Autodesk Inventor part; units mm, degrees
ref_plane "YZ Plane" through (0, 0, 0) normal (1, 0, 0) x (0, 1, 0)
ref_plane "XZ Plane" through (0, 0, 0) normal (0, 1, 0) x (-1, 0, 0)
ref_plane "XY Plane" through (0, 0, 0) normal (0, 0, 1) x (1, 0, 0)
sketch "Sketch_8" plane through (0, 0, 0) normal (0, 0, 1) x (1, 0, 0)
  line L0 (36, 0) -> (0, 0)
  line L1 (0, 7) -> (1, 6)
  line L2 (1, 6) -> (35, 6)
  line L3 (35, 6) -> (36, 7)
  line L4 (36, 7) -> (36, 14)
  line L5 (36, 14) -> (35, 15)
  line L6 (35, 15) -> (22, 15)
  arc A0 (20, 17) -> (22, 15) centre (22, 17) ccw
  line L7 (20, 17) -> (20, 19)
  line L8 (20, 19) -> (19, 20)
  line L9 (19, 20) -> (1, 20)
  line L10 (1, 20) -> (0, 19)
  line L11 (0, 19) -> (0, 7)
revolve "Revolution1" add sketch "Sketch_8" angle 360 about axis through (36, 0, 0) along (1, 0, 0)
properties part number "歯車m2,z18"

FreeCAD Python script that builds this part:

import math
import FreeCAD as App
import Part
import Sketcher
from FreeCAD import Vector

doc = App.newDocument("Part")
params = doc.addObject("Spreadsheet::Sheet", "Params")
for row, (alias, value) in enumerate([
    ("sketch1_radius", "2 mm"),
    ("sketch1_width", "34 mm"),
    ("sketch1_width2", "13 mm"),
    ("sketch1_width3", "18 mm"),
    ("sketch1_height", "12 mm"),
    ("revolution_angle", "360 deg"),
], start=1):
    params.set(f"A{row}", alias)
    params.set(f"B{row}", "=" + value)
    params.setAlias(f"B{row}", alias)

body = doc.addObject("PartDesign::Body", "Body")

sketch1 = doc.addObject("Sketcher::SketchObject", "Sketch")
body.addObject(sketch1)
sketch1.AttachmentSupport = (doc.XY_Plane, [""])
sketch1.MapMode = "FlatFace"
sketch1.addGeometry([
    Part.LineSegment(Vector(0, 19, 0), Vector(0, 7, 0)),
    Part.LineSegment(Vector(0, 7, 0), Vector(1, 6, 0)),
    Part.LineSegment(Vector(1, 6, 0), Vector(35, 6, 0)),
    Part.LineSegment(Vector(35, 6, 0), Vector(36, 7, 0)),
    Part.LineSegment(Vector(36, 7, 0), Vector(36, 14, 0)),
    Part.LineSegment(Vector(36, 14, 0), Vector(35, 15, 0)),
    Part.LineSegment(Vector(35, 15, 0), Vector(22, 15, 0)),
    Part.ArcOfCircle(Part.Circle(Vector(22, 17, 0), Vector(0, 0, 1), 2), math.radians(180), math.radians(270)),
    Part.LineSegment(Vector(20, 17, 0), Vector(20, 19, 0)),
    Part.LineSegment(Vector(20, 19, 0), Vector(19, 20, 0)),
    Part.LineSegment(Vector(19, 20, 0), Vector(1, 20, 0)),
    Part.LineSegment(Vector(1, 20, 0), Vector(0, 19, 0)),
], False)
sketch1.addConstraint([
    Sketcher.Constraint("Coincident", 0, 2, 1, 1),
    Sketcher.Constraint("Coincident", 1, 2, 2, 1),
    Sketcher.Constraint("Coincident", 2, 2, 3, 1),
    Sketcher.Constraint("Coincident", 3, 2, 4, 1),
    Sketcher.Constraint("Coincident", 4, 2, 5, 1),
    Sketcher.Constraint("Coincident", 5, 2, 6, 1),
    Sketcher.Constraint("Tangent", 6, 2, 7, 2),
    Sketcher.Constraint("Tangent", 7, 1, 8, 1),
    Sketcher.Constraint("Coincident", 8, 2, 9, 1),
    Sketcher.Constraint("Coincident", 9, 2, 10, 1),
    Sketcher.Constraint("Coincident", 10, 2, 11, 1),
    Sketcher.Constraint("Coincident", 11, 2, 0, 1),
    Sketcher.Constraint("Vertical", 0),
    Sketcher.Constraint("Horizontal", 2),
    Sketcher.Constraint("Vertical", 4),
    Sketcher.Constraint("Horizontal", 6),
    Sketcher.Constraint("Vertical", 8),
    Sketcher.Constraint("Horizontal", 10),
    Sketcher.Constraint("PointOnObject", 0, 2, -2),
    Sketcher.Constraint("Perpendicular", 1, 3),
    Sketcher.Constraint("Perpendicular", 3, 5),
    Sketcher.Constraint("Parallel", 5, 9),
    Sketcher.Constraint("Perpendicular", 9, 11),
    Sketcher.Constraint("Horizontal", 0, 2, 3, 2),
    Sketcher.Constraint("Horizontal", 8, 2, 11, 2),
    Sketcher.Constraint("Vertical", 2, 2, 5, 2),
    Sketcher.Constraint("Vertical", 1, 2, 10, 2),
    Sketcher.Constraint("Equal", 1, 3),
    Sketcher.Constraint("Radius", 7, 2.0),
    Sketcher.Constraint("DistanceX", 2, 1, 2, 2, 34.0),
    Sketcher.Constraint("DistanceX", 6, 2, 6, 1, 13.0),
    Sketcher.Constraint("DistanceX", 10, 2, 10, 1, 18.0),
    Sketcher.Constraint("DistanceY", 0, 2, 0, 1, 12.0),
    Sketcher.Constraint("DistanceY", 4, 1, 4, 2, 7.0),
    Sketcher.Constraint("DistanceY", -1, 1, 7, 3, 17.0),
])
sketch1.setExpression("Constraints[28]", "Params.sketch1_radius")
sketch1.setExpression("Constraints[29]", "Params.sketch1_width")
sketch1.setExpression("Constraints[30]", "Params.sketch1_width2")
sketch1.setExpression("Constraints[31]", "Params.sketch1_width3")
sketch1.setExpression("Constraints[32]", "Params.sketch1_height")
revolution = doc.addObject("PartDesign::Revolution", "Revolution")
body.addObject(revolution)
revolution.Profile = sketch1
revolution.ReferenceAxis = (sketch1, ["H_Axis"])
revolution.setExpression("Angle", "Params.revolution_angle")

doc.recompute()
